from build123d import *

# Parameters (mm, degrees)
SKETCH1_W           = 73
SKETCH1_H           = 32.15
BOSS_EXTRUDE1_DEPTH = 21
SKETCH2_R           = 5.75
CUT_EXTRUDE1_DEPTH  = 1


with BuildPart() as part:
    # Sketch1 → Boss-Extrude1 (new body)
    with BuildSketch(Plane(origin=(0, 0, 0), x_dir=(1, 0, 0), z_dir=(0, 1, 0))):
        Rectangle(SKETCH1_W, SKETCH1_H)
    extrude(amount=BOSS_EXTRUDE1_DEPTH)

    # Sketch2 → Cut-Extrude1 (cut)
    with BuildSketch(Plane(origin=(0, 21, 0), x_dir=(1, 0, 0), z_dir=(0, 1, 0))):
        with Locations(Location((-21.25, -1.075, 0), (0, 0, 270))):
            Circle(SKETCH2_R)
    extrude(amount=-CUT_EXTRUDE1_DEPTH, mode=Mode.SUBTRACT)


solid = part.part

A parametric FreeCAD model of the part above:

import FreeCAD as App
import Part
import Sketcher

V = App.Vector

doc = App.newDocument("Part")
body = doc.addObject("PartDesign::Body", "Body")

sketch1 = body.newObject("Sketcher::SketchObject", "Sketch")
sketch1.AttachmentSupport = (doc.getObject("XZ_Plane"), [""])
sketch1.MapMode = "FlatFace"
sketch1.addGeometry(Part.LineSegment(V(-36, -16, 0), V(-36, 16, 0)), False)
sketch1.addGeometry(Part.LineSegment(V(-36, 16, 0), V(36, 16, 0)), False)
sketch1.addGeometry(Part.LineSegment(V(36, 16, 0), V(36, -16, 0)), False)
sketch1.addGeometry(Part.LineSegment(V(36, -16, 0), V(-36, -16, 0)), False)
sketch1.addConstraint(Sketcher.Constraint("Coincident", 0, 2, 1, 1))
sketch1.addConstraint(Sketcher.Constraint("Coincident", 1, 2, 2, 1))
sketch1.addConstraint(Sketcher.Constraint("Coincident", 2, 2, 3, 1))
sketch1.addConstraint(Sketcher.Constraint("Coincident", 3, 2, 0, 1))
sketch1.addConstraint(Sketcher.Constraint("Vertical", 0))
sketch1.addConstraint(Sketcher.Constraint("Horizontal", 1))
sketch1.addConstraint(Sketcher.Constraint("Vertical", 2))
sketch1.addConstraint(Sketcher.Constraint("Horizontal", 3))
sketch1.addConstraint(Sketcher.Constraint("Symmetric", 0, 2, 2, 2, -1, 1))
sketch1.addConstraint(Sketcher.Constraint("DistanceX", 1, 1, 1, 2, 73.0))
sketch1.addConstraint(Sketcher.Constraint("DistanceY", 0, 1, 0, 2, 32.15))
pad1 = body.newObject("PartDesign::Pad", "Pad")
pad1.Profile = sketch1
pad1.Length = 21
pad1.Reversed = True

sketch2 = body.newObject("Sketcher::SketchObject", "Sketch001")
sketch2.AttachmentSupport = (doc.getObject("XZ_Plane"), [""])
sketch2.MapMode = "FlatFace"
sketch2.AttachmentOffset = App.Placement(V(0, 0, -21), App.Rotation())
sketch2.addGeometry(Part.Circle(V(-21, 1, 0), V(0, 0, 1), 6), False)
sketch2.addConstraint(Sketcher.Constraint("Diameter", 0, 11.5))
sketch2.addConstraint(Sketcher.Constraint("DistanceX", 0, 3, -1, 1, 21.25))
sketch2.addConstraint(Sketcher.Constraint("DistanceY", -1, 1, 0, 3, 1.075))
pocket1 = body.newObject("PartDesign::Pocket", "Pocket")
pocket1.Profile = sketch2
pocket1.Length = 1
pocket1.Reversed = True

doc.recompute()
